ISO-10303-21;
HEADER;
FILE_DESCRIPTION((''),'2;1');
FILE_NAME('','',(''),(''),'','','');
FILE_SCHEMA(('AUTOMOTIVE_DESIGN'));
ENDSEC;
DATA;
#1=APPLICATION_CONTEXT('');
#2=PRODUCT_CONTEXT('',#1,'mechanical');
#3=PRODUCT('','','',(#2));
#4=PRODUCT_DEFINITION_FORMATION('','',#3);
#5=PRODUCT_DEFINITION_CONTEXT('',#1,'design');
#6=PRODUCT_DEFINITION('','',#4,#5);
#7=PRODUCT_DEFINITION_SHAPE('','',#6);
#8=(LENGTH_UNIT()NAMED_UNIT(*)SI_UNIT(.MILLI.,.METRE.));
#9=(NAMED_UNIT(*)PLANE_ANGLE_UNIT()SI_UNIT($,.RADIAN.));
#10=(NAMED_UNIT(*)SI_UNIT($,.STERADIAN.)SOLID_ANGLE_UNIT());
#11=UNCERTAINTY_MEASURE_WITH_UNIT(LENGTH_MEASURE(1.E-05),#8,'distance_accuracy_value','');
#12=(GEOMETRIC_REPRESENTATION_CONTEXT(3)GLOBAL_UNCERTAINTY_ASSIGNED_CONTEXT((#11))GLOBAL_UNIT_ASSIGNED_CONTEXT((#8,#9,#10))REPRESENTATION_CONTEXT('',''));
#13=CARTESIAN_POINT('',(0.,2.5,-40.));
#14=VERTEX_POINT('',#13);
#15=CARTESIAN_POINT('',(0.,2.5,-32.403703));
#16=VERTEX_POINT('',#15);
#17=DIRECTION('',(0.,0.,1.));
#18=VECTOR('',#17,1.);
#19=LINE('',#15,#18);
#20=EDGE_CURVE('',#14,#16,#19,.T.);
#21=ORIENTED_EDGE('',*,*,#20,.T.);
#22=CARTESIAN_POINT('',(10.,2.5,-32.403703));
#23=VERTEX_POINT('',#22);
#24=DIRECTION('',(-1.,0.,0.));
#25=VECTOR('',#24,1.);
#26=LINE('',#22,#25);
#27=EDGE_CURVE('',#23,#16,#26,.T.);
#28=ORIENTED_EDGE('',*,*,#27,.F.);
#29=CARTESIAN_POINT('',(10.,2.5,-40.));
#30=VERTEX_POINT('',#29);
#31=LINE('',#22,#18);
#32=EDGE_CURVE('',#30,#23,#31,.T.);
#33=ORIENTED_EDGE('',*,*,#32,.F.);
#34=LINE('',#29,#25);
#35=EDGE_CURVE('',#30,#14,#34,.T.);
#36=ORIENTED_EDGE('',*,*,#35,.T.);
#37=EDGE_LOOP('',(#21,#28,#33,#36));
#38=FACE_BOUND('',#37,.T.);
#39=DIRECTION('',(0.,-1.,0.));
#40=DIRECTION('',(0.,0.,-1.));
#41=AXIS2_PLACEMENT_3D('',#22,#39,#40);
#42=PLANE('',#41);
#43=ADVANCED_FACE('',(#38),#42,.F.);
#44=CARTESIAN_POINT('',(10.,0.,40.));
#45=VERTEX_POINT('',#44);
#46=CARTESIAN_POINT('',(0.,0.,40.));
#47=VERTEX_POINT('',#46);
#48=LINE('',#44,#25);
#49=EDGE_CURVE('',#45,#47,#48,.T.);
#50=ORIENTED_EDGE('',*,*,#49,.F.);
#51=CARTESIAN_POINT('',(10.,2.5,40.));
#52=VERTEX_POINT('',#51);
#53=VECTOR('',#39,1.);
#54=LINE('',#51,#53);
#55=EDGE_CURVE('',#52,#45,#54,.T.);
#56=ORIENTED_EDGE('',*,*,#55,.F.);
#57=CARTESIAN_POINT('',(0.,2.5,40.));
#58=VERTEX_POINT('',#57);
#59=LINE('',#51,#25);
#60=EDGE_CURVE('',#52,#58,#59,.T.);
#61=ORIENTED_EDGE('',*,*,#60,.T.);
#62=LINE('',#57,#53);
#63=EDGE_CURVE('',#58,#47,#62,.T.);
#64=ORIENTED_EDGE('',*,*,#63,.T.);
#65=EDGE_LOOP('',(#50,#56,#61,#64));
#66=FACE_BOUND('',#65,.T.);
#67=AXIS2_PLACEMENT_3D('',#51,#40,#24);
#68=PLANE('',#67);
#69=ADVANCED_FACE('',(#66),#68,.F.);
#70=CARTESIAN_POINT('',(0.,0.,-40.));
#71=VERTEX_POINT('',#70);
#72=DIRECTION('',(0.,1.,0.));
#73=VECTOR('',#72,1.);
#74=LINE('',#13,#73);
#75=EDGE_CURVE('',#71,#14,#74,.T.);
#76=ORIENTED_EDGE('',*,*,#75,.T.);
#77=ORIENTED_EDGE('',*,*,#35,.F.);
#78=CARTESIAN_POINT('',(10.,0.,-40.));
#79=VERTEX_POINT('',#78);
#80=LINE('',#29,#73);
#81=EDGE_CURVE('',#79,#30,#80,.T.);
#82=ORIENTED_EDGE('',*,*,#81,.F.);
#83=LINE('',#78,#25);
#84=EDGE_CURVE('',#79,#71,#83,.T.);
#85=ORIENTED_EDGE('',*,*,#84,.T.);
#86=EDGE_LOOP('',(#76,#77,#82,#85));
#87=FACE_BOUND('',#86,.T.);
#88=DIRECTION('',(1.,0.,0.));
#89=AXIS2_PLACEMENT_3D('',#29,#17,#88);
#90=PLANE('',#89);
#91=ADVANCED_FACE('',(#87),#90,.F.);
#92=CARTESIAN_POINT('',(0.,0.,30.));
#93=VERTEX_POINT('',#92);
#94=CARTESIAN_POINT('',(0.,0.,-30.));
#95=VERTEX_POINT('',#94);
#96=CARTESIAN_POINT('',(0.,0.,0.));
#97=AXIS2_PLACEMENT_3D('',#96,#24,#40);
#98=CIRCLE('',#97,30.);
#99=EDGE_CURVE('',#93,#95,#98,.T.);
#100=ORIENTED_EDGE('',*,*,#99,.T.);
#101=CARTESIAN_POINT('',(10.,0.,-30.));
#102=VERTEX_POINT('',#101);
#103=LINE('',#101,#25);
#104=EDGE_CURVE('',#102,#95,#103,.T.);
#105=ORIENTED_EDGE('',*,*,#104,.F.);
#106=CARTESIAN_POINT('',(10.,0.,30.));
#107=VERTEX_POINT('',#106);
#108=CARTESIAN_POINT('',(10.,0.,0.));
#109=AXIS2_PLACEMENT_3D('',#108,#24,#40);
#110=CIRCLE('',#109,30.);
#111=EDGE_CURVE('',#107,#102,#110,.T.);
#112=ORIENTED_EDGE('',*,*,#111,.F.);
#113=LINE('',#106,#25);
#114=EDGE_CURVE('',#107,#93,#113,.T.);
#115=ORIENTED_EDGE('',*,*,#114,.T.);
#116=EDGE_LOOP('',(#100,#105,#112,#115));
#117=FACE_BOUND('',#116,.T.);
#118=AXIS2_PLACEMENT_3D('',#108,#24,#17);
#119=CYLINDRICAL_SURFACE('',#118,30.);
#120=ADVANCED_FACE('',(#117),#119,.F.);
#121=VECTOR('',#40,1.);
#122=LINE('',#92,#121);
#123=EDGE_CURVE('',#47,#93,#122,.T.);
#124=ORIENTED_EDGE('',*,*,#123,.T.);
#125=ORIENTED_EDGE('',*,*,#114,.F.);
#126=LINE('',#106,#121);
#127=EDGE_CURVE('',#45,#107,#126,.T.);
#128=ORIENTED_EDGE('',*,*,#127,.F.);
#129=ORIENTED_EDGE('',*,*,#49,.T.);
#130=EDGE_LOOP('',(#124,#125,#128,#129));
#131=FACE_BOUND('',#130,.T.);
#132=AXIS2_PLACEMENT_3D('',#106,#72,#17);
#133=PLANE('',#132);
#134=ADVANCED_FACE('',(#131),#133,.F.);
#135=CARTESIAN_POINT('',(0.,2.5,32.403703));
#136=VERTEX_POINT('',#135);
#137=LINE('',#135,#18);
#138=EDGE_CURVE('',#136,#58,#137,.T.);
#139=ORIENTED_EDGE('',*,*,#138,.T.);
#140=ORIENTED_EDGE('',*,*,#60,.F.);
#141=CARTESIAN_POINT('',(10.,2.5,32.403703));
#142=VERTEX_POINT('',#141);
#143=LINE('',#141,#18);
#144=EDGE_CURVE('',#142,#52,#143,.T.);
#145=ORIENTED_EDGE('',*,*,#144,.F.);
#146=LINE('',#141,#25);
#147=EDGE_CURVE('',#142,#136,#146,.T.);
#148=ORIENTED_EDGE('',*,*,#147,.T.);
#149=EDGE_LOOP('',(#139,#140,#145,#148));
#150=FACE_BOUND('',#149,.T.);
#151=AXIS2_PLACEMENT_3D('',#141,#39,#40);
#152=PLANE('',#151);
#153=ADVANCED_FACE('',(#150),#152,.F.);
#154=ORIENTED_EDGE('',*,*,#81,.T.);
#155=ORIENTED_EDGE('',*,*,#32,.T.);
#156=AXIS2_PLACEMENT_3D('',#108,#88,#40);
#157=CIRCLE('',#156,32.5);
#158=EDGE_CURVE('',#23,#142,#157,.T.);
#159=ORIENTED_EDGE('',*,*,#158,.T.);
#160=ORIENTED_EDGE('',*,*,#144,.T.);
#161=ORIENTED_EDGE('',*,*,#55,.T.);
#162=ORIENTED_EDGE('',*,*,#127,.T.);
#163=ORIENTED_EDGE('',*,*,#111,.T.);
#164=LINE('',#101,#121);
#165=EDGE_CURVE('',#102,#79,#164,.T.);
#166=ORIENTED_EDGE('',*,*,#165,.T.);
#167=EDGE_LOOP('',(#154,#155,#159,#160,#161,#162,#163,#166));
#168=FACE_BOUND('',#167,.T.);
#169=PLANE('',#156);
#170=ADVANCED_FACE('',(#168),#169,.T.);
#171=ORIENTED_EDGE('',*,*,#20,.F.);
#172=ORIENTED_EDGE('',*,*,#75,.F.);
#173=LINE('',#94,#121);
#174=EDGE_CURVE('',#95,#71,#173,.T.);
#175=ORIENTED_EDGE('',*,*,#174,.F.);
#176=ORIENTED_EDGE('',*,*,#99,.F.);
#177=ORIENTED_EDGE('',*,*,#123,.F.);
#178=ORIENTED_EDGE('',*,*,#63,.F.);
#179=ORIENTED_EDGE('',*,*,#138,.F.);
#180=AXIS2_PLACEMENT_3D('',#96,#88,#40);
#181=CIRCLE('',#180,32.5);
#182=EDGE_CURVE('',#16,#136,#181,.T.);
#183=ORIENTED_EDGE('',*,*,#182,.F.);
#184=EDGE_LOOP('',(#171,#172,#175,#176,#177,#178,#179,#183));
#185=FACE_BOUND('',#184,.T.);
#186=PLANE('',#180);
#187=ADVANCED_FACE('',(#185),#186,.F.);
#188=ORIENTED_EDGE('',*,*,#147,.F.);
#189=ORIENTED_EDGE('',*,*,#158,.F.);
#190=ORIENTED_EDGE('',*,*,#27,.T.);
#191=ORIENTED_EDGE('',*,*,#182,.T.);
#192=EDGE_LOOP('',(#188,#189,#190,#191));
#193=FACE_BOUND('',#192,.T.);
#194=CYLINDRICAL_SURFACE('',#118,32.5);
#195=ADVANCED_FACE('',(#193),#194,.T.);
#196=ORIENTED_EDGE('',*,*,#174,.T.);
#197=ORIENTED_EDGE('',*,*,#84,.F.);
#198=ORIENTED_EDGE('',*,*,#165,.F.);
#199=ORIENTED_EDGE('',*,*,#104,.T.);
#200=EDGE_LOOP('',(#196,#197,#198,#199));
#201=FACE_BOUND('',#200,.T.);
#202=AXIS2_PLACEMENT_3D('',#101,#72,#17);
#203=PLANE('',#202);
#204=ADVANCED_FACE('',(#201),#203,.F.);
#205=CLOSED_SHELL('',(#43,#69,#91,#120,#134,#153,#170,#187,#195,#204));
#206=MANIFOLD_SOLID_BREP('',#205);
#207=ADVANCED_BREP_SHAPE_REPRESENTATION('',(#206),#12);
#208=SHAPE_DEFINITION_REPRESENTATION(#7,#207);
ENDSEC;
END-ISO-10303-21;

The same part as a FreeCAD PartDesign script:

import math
import FreeCAD as App
import Part
import Sketcher
from FreeCAD import Vector

doc = App.newDocument("Part")
body = doc.addObject("PartDesign::Body", "Body")

# Sketch on YZ plane
sketch1 = body.newObject("Sketcher::SketchObject", "Sketch")
sketch1.AttachmentSupport = (doc.getObject("YZ_Plane"), [""])
sketch1.MapMode = "FlatFace"
sketch1.addGeometry(Part.LineSegment(Vector(0, 40, 0), Vector(0, 30, 0)), False)
sketch1.addGeometry(Part.ArcOfCircle(Part.Circle(Vector(0, 0, 0), Vector(0, 0, 1), 30), math.radians(-90), math.radians(90)), False)
sketch1.addGeometry(Part.LineSegment(Vector(0, -30, 0), Vector(0, -40, 0)), False)
sketch1.addGeometry(Part.LineSegment(Vector(0, -40, 0), Vector(2.5, -40, 0)), False)
sketch1.addGeometry(Part.LineSegment(Vector(2.5, -40, 0), Vector(2.5, -32.4, 0)), False)
sketch1.addGeometry(Part.ArcOfCircle(Part.Circle(Vector(0, 0, 0), Vector(0, 0, 1), 32.5), math.radians(-86), math.radians(86)), False)
sketch1.addGeometry(Part.LineSegment(Vector(2.5, 32.4, 0), Vector(2.5, 40, 0)), False)
sketch1.addGeometry(Part.LineSegment(Vector(2.5, 40, 0), Vector(0, 40, 0)), False)
sketch1.addConstraint(Sketcher.Constraint("Coincident", 0, 2, 1, 2))
sketch1.addConstraint(Sketcher.Constraint("Coincident", 1, 1, 2, 1))
sketch1.addConstraint(Sketcher.Constraint("Coincident", 2, 2, 3, 1))
sketch1.addConstraint(Sketcher.Constraint("Coincident", 3, 2, 4, 1))
sketch1.addConstraint(Sketcher.Constraint("Coincident", 4, 2, 5, 1))
sketch1.addConstraint(Sketcher.Constraint("Coincident", 5, 2, 6, 1))
sketch1.addConstraint(Sketcher.Constraint("Coincident", 6, 2, 7, 1))
sketch1.addConstraint(Sketcher.Constraint("Coincident", 7, 2, 0, 1))
sketch1.addConstraint(Sketcher.Constraint("Vertical", 0))
sketch1.addConstraint(Sketcher.Constraint("Vertical", 2))
sketch1.addConstraint(Sketcher.Constraint("Horizontal", 3))
sketch1.addConstraint(Sketcher.Constraint("Vertical", 4))
sketch1.addConstraint(Sketcher.Constraint("Vertical", 6))
sketch1.addConstraint(Sketcher.Constraint("Horizontal", 7))
sketch1.addConstraint(Sketcher.Constraint("Coincident", 1, 3, -1, 1))
sketch1.addConstraint(Sketcher.Constraint("Coincident", 5, 3, -1, 1))
sketch1.addConstraint(Sketcher.Constraint("Symmetric", 2, 2, 7, 2, -1, 1))
sketch1.addConstraint(Sketcher.Constraint("PointOnObject", 0, 2, -2))
sketch1.addConstraint(Sketcher.Constraint("Vertical", 4, 2, 5, 2))
sketch1.addConstraint(Sketcher.Constraint("Radius", 1, 30.0))
sketch1.addConstraint(Sketcher.Constraint("Radius", 5, 32.5))
sketch1.addConstraint(Sketcher.Constraint("DistanceY", 0, 2, 0, 1, 10.0))
sketch1.addConstraint(Sketcher.Constraint("DistanceX", 3, 1, 3, 2, 2.5))
pad1 = body.newObject("PartDesign::Pad", "Pad")
pad1.Profile = sketch1
pad1.Length = 10

doc.recompute()
